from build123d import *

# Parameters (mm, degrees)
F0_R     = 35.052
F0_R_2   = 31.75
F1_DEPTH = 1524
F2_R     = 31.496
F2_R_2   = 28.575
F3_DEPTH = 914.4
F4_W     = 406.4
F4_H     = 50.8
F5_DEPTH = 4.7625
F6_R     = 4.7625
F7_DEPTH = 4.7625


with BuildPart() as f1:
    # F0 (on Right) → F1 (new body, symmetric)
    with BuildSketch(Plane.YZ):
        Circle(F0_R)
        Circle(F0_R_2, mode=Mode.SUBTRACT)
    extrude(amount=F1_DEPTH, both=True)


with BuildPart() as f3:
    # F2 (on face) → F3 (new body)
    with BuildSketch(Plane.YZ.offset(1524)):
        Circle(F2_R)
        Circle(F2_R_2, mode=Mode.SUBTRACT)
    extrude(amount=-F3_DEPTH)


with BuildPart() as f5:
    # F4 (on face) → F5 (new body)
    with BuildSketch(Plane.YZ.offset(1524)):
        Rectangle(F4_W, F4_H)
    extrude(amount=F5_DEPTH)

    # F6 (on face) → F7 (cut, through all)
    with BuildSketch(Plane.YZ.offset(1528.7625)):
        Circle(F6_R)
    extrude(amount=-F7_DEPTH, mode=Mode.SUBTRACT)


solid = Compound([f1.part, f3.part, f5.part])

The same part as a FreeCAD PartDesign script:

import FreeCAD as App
import Part
import Sketcher
Q = App.Units.Quantity


def add_polygon(sketch, points):
    """Adds a closed chain of lines whose ends are joined by coincident constraints."""
    first, n = sketch.GeometryCount, len(points)
    for a, b in zip(points, points[1:] + points[:1]):
        sketch.addGeometry(Part.LineSegment(App.Vector(*a, 0), App.Vector(*b, 0)), False)
    for i in range(n):
        sketch.addConstraint(Sketcher.Constraint("Coincident", first + i, 2, first + (i + 1) % n, 1))

doc = App.newDocument("Part")
params = doc.addObject("Spreadsheet::Sheet", "Params")
for row, (alias, value) in enumerate([
    ("sketch1_diameter", "2.5 in"),
    ("sketch1_diameter2", "2.76 in"),
    ("pad1_length", "120 in"),
    ("sketch2_diameter", "2.48 in"),
    ("sketch2_diameter2", "2.25 in"),
    ("pad2_length", "36 in"),
    ("sketch3_width", "16 in"),
    ("sketch3_height", "2 in"),
    ("pad3_length", "0.1875 in"),
    ("sketch4_diameter", "0.375 in"),
], start=1):
    params.set(f"A{row}", alias)
    params.set(f"B{row}", "=" + value)
    params.setAlias(f"B{row}", alias)

body = doc.addObject("PartDesign::Body", "Body")

# Sketch on YZ plane
sketch1 = body.newObject("Sketcher::SketchObject", "Sketch")
sketch1.AttachmentSupport = (doc.getObject("YZ_Plane"), [""])
sketch1.MapMode = "FlatFace"
sketch1.addGeometry([
    Part.Circle(App.Vector(0, 0, 0), App.Vector(0, 0, 1), 35),
    Part.Circle(App.Vector(0, 0, 0), App.Vector(0, 0, 1), 32),
], False)
sketch1.addConstraint([
    Sketcher.Constraint("Coincident", 0, 3, -1, 1),
    Sketcher.Constraint("Coincident", 1, 3, -1, 1),
    Sketcher.Constraint("Diameter", 1, Q("2.5 in")),
    Sketcher.Constraint("Diameter", 0, Q("2.76 in")),
])
sketch1.setExpression("Constraints[2]", "Params.sketch1_diameter")
sketch1.setExpression("Constraints[3]", "Params.sketch1_diameter2")
pad1 = body.newObject("PartDesign::Pad", "Pad")
pad1.Profile = sketch1
pad1.setExpression("Length", "Params.pad1_length")
pad1.Midplane = True
body2 = doc.addObject("PartDesign::Body", "Body001")

# Sketch on YZ plane
sketch2 = body2.newObject("Sketcher::SketchObject", "Sketch001")
sketch2.AttachmentSupport = (doc.getObject("YZ_Plane001"), [""])
sketch2.MapMode = "FlatFace"
sketch2.AttachmentOffset = App.Placement(App.Vector(0, 0, 60 * 25.4), App.Rotation())
sketch2.addGeometry([
    Part.Circle(App.Vector(0, 0, 0), App.Vector(0, 0, 1), 31),
    Part.Circle(App.Vector(0, 0, 0), App.Vector(0, 0, 1), 29),
], False)
sketch2.addConstraint([
    Sketcher.Constraint("Coincident", 0, 3, -1, 1),
    Sketcher.Constraint("Coincident", 1, 3, -1, 1),
    Sketcher.Constraint("Diameter", 0, Q("2.48 in")),
    Sketcher.Constraint("Diameter", 1, Q("2.25 in")),
])
sketch2.setExpression("Constraints[2]", "Params.sketch2_diameter")
sketch2.setExpression("Constraints[3]", "Params.sketch2_diameter2")
pad2 = body2.newObject("PartDesign::Pad", "Pad001")
pad2.Profile = sketch2
pad2.setExpression("Length", "Params.pad2_length")
pad2.Reversed = True
body3 = doc.addObject("PartDesign::Body", "Body002")

# Sketch on YZ plane
sketch3 = body3.newObject("Sketcher::SketchObject", "Sketch002")
sketch3.AttachmentSupport = (doc.getObject("YZ_Plane002"), [""])
sketch3.MapMode = "FlatFace"
sketch3.AttachmentOffset = App.Placement(App.Vector(0, 0, 60 * 25.4), App.Rotation())
add_polygon(sketch3, [(-203, 25), (-203, -25), (203, -25), (203, 25)])  # lines 0-3
sketch3.addConstraint([
    Sketcher.Constraint("Vertical", 0),
    Sketcher.Constraint("Horizontal", 1),
    Sketcher.Constraint("Vertical", 2),
    Sketcher.Constraint("Horizontal", 3),
    Sketcher.Constraint("Symmetric", 0, 2, 2, 2, -1, 1),
    Sketcher.Constraint("DistanceX", 1, 1, 1, 2, Q("16 in")),
    Sketcher.Constraint("DistanceY", 0, 2, 0, 1, Q("2 in")),
])
sketch3.setExpression("Constraints[9]", "Params.sketch3_width")
sketch3.setExpression("Constraints[10]", "Params.sketch3_height")
pad3 = body3.newObject("PartDesign::Pad", "Pad002")
pad3.Profile = sketch3
pad3.setExpression("Length", "Params.pad3_length")

# Sketch on YZ plane
sketch4 = body3.newObject("Sketcher::SketchObject", "Sketch003")
sketch4.AttachmentSupport = (doc.getObject("YZ_Plane002"), [""])
sketch4.MapMode = "FlatFace"
sketch4.AttachmentOffset = App.Placement(App.Vector(0, 0, 60.1875 * 25.4), App.Rotation())
sketch4.addGeometry(Part.Circle(App.Vector(0, 0, 0), App.Vector(0, 0, 1), 4.8), False)
sketch4.addConstraint([
    Sketcher.Constraint("Coincident", 0, 3, -1, 1),
    Sketcher.Constraint("Diameter", 0, Q("0.375 in")),
])
sketch4.setExpression("Constraints[1]", "Params.sketch4_diameter")
pocket1 = body3.newObject("PartDesign::Pocket", "Pocket")
pocket1.Profile = sketch4
pocket1.Type = "ThroughAll"

doc.recompute()
